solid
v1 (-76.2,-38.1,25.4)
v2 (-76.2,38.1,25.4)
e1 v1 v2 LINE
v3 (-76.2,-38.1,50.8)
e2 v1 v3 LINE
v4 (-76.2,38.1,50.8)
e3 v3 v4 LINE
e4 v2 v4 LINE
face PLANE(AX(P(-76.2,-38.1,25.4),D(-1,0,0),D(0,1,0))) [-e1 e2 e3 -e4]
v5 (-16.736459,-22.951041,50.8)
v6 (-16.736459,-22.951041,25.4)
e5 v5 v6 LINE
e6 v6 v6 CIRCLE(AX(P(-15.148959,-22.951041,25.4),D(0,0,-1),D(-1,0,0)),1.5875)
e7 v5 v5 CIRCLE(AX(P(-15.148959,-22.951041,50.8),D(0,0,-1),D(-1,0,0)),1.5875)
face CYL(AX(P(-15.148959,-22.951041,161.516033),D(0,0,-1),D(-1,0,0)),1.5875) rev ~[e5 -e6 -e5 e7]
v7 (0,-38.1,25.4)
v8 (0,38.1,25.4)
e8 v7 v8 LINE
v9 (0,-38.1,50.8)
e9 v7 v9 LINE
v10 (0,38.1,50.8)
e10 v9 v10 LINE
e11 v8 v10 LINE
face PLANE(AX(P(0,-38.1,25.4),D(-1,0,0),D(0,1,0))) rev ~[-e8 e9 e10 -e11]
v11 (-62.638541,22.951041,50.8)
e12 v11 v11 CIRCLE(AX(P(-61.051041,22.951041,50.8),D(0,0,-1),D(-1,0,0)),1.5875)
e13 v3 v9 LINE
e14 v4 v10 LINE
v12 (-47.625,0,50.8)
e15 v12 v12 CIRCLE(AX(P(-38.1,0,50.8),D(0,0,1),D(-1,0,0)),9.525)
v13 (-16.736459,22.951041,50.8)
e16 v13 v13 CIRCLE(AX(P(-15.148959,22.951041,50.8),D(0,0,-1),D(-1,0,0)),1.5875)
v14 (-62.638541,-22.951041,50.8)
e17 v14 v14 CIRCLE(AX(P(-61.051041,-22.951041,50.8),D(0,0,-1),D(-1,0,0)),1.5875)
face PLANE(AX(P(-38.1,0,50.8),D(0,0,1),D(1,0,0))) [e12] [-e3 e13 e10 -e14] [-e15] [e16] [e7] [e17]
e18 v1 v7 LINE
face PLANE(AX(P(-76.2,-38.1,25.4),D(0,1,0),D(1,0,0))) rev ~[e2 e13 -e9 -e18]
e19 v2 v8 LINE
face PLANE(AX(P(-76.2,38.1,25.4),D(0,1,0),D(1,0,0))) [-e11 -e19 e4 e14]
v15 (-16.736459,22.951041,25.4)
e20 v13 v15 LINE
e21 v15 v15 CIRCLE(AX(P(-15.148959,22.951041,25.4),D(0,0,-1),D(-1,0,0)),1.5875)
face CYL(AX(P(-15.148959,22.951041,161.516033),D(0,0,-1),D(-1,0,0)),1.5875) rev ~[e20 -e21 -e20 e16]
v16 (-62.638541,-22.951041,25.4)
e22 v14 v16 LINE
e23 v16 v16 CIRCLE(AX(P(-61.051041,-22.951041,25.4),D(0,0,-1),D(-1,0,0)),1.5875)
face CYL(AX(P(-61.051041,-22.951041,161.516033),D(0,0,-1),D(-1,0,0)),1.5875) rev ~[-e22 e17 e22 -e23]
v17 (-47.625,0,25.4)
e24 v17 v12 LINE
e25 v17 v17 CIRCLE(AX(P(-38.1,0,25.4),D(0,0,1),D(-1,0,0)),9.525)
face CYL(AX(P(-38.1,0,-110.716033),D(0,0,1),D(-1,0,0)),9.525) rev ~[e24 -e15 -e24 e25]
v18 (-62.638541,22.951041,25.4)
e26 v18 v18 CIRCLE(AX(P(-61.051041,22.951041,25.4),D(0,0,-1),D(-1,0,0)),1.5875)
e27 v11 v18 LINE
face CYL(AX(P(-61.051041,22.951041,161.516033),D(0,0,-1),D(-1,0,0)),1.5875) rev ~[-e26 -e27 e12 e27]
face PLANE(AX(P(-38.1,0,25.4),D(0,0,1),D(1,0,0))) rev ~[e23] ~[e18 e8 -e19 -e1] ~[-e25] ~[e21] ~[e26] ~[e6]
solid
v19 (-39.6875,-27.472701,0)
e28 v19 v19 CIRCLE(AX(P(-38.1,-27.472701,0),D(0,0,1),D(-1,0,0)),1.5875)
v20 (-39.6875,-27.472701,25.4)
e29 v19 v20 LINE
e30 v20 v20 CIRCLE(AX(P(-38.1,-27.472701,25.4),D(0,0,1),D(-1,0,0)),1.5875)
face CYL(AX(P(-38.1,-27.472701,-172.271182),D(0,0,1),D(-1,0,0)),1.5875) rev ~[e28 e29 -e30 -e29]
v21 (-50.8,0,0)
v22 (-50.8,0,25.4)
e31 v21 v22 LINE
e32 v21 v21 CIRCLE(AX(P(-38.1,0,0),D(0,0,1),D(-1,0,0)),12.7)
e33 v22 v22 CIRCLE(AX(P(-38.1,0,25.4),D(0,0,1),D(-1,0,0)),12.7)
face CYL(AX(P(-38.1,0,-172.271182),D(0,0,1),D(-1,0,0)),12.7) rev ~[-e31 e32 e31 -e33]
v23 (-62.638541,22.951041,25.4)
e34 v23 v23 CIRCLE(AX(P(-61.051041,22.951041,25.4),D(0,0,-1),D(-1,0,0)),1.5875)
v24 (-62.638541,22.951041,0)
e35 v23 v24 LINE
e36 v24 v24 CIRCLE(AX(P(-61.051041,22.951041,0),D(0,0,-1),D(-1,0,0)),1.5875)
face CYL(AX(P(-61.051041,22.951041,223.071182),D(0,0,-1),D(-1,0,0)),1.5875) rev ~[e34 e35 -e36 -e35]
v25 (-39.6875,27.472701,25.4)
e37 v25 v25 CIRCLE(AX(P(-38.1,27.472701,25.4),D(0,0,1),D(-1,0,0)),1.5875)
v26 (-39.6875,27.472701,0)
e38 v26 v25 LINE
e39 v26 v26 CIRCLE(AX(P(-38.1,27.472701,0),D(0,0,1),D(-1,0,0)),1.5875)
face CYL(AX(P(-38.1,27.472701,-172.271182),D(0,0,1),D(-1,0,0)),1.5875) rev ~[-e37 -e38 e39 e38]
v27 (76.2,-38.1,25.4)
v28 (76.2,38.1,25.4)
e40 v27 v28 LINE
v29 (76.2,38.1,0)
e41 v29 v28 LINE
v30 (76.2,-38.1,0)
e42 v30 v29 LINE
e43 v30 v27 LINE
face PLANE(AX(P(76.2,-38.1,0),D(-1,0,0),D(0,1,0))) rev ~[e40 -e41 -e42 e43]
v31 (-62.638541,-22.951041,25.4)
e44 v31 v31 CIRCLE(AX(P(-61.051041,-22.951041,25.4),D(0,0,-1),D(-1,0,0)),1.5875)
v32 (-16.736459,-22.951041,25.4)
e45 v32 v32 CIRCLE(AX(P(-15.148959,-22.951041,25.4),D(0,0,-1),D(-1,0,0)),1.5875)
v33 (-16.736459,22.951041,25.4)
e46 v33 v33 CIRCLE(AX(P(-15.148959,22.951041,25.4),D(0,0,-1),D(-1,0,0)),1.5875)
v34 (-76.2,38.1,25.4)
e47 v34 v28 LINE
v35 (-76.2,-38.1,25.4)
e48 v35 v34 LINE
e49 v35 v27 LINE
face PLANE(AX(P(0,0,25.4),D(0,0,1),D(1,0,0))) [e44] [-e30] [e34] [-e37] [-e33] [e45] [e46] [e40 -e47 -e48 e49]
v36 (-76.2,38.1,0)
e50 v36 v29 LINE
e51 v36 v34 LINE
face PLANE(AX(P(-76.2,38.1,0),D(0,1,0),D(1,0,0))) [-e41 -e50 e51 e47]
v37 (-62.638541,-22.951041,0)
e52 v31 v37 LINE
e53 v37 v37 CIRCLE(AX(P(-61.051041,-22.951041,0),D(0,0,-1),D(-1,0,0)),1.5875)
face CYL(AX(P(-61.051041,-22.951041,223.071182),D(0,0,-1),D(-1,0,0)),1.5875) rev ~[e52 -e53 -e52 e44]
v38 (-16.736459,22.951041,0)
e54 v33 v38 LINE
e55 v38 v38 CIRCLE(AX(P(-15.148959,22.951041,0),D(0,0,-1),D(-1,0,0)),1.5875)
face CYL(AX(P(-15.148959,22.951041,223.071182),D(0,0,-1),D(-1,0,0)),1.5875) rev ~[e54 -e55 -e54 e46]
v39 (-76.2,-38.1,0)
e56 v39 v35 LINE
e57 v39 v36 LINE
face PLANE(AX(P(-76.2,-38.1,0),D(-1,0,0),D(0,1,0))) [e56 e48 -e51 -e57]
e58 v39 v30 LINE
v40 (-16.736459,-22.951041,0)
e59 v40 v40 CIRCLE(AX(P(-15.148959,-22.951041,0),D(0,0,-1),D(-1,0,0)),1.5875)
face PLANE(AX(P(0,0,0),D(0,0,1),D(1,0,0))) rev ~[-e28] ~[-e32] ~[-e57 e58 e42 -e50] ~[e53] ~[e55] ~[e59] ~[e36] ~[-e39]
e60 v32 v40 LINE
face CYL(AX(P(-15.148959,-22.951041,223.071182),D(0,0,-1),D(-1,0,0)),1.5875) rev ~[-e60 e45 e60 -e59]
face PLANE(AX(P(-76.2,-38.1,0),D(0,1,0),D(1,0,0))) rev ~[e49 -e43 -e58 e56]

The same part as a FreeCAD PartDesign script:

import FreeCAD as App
import Part
import Sketcher

V = App.Vector
Q = App.Units.Quantity


def add_polygon(sketch, points):
    """Adds a closed chain of lines whose ends are joined by coincident constraints."""
    first, n = sketch.GeometryCount, len(points)
    for a, b in zip(points, points[1:] + points[:1]):
        sketch.addGeometry(Part.LineSegment(App.Vector(*a, 0), App.Vector(*b, 0)), False)
    for i in range(n):
        sketch.addConstraint(Sketcher.Constraint("Coincident", first + i, 2, first + (i + 1) % n, 1))

doc = App.newDocument("Part")
params = doc.addObject("Spreadsheet::Sheet", "Params")
for row, (alias, value) in enumerate([
    ("sketch1_width", "6 in"),
    ("sketch1_height", "3 in"),
    ("pad1_length", "1 in"),
    ("sketch2_diameter", "1 in"),
    ("hole_diameter", "1 in"),
    ("sketch3_diameter", "0.125 in"),
    ("hole2_diameter", "0.125 in"),
    ("sketch4_diameter", "0.125 in"),
    ("hole3_diameter", "0.125 in"),
    ("sketch5_width", "3 in"),
    ("pad2_length", "1 in"),
    ("sketch6_diameter", "0.125 in"),
    ("hole4_diameter", "0.125 in"),
    ("sketch7_diameter", "0.75 in"),
    ("hole5_diameter", "0.75 in"),
], start=1):
    params.set(f"A{row}", alias)
    params.set(f"B{row}", "=" + value)
    params.setAlias(f"B{row}", alias)

body = doc.addObject("PartDesign::Body", "Body")

# Sketch on XY plane
sketch1 = body.newObject("Sketcher::SketchObject", "Sketch")
sketch1.AttachmentSupport = (doc.getObject("XY_Plane"), [""])
sketch1.MapMode = "FlatFace"
add_polygon(sketch1, [(-76, 38), (-76, -38), (76, -38), (76, 38)])  # lines 0-3
sketch1.addConstraint([
    Sketcher.Constraint("Vertical", 0),
    Sketcher.Constraint("Horizontal", 1),
    Sketcher.Constraint("Vertical", 2),
    Sketcher.Constraint("Horizontal", 3),
    Sketcher.Constraint("Symmetric", 0, 2, 2, 2, -1, 1),
    Sketcher.Constraint("DistanceX", 1, 1, 1, 2, Q("6 in")),
    Sketcher.Constraint("DistanceY", 0, 2, 0, 1, Q("3 in")),
])
sketch1.setExpression("Constraints[9]", "Params.sketch1_width")
sketch1.setExpression("Constraints[10]", "Params.sketch1_height")
pad1 = body.newObject("PartDesign::Pad", "Pad")
pad1.Profile = sketch1
pad1.setExpression("Length", "Params.pad1_length")

# Sketch on XY plane
sketch2 = body.newObject("Sketcher::SketchObject", "Sketch001")
sketch2.AttachmentSupport = (doc.getObject("XY_Plane"), [""])
sketch2.MapMode = "FlatFace"
sketch2.addGeometry(Part.Circle(V(-38, 0, 0), V(0, 0, 1), 13), False)
sketch2.addConstraint([
    Sketcher.Constraint("PointOnObject", 0, 3, -1),
    Sketcher.Constraint("Diameter", 0, Q("1 in")),
    Sketcher.Constraint("DistanceX", 0, 3, -1, 1, Q("1.5 in")),
])
sketch2.setExpression("Constraints[1]", "Params.sketch2_diameter")
doc.recompute()
hole = body.newObject("PartDesign::Hole", "Hole")
hole.Profile = sketch2
hole.ThreadType = "None"
hole.setExpression("Diameter", "Params.hole_diameter")
hole.DepthType = "ThroughAll"
hole.Reversed = True

# Sketch on XY plane
sketch3 = body.newObject("Sketcher::SketchObject", "Sketch002")
sketch3.AttachmentSupport = (doc.getObject("XY_Plane"), [""])
sketch3.MapMode = "FlatFace"
sketch3.addGeometry([
    Part.Circle(V(-38.1, -27.5, 0), V(0, 0, 1), 1.6),
    Part.Circle(V(-38.1, 27.5, 0), V(0, 0, 1), 1.6),
], False)
sketch3.addConstraint([
    Sketcher.Constraint("Equal", 0, 1),
    Sketcher.Constraint("Symmetric", 0, 3, 1, 3, -1),
    Sketcher.Constraint("Diameter", 0, Q("0.125 in")),
    Sketcher.Constraint("DistanceX", 0, 3, -1, 1, Q("1.5 in")),
    Sketcher.Constraint("DistanceY", 0, 3, -1, 1, Q("27.472701 mm")),
])
sketch3.setExpression("Constraints[2]", "Params.sketch3_diameter")
doc.recompute()
hole2 = body.newObject("PartDesign::Hole", "Hole001")
hole2.Profile = sketch3
hole2.ThreadType = "None"
hole2.setExpression("Diameter", "Params.hole2_diameter")
hole2.DepthType = "ThroughAll"
hole2.Reversed = True

# Sketch on XY plane
sketch4 = body.newObject("Sketcher::SketchObject", "Sketch003")
sketch4.AttachmentSupport = (doc.getObject("XY_Plane"), [""])
sketch4.MapMode = "FlatFace"
sketch4.AttachmentOffset = App.Placement(V(0, 0, 2 * 25.4), App.Rotation())
sketch4.addGeometry([
    Part.Circle(V(-15.1, 23, 0), V(0, 0, 1), 1.6),
    Part.Circle(V(-15.1, -23, 0), V(0, 0, 1), 1.6),
    Part.Circle(V(-61.1, -23, 0), V(0, 0, 1), 1.6),
    Part.Circle(V(-61.1, 23, 0), V(0, 0, 1), 1.6),
], False)
sketch4.addConstraint([
    Sketcher.Constraint("Equal", 0, 1),
    Sketcher.Constraint("Equal", 1, 2),
    Sketcher.Constraint("Equal", 2, 3),
    Sketcher.Constraint("Symmetric", 0, 3, 1, 3, -1),
    Sketcher.Constraint("Symmetric", 2, 3, 3, 3, -1),
    Sketcher.Constraint("Horizontal", 1, 3, 2, 3),
    Sketcher.Constraint("Diameter", 0, Q("0.125 in")),
    Sketcher.Constraint("DistanceX", 0, 3, -1, 1, Q("15.148959 mm")),
    Sketcher.Constraint("DistanceY", -1, 1, 0, 3, Q("22.951041 mm")),
    Sketcher.Constraint("DistanceX", 2, 3, -1, 1, Q("61.051041 mm")),
])
sketch4.setExpression("Constraints[6]", "Params.sketch4_diameter")
doc.recompute()
hole3 = body.newObject("PartDesign::Hole", "Hole002")
hole3.Profile = sketch4
hole3.ThreadType = "None"
hole3.setExpression("Diameter", "Params.hole3_diameter")
hole3.DepthType = "ThroughAll"
body2 = doc.addObject("PartDesign::Body", "Body001")

# Sketch on XY plane
sketch5 = body2.newObject("Sketcher::SketchObject", "Sketch004")
sketch5.AttachmentSupport = (doc.getObject("XY_Plane001"), [""])
sketch5.MapMode = "FlatFace"
sketch5.AttachmentOffset = App.Placement(V(0, 0, 1 * 25.4), App.Rotation())
add_polygon(sketch5, [(-76, 38), (-76, -38), (0, -38), (0, 38)])  # lines 0-3
sketch5.addConstraint([
    Sketcher.Constraint("Vertical", 0),
    Sketcher.Constraint("Horizontal", 1),
    Sketcher.Constraint("Vertical", 2),
    Sketcher.Constraint("Horizontal", 3),
    Sketcher.Constraint("Symmetric", 1, 2, 2, 2, -1, 1),
    Sketcher.Constraint("Equal", 3, 0),
    Sketcher.Constraint("DistanceX", 1, 1, 1, 2, Q("3 in")),
])
sketch5.setExpression("Constraints[10]", "Params.sketch5_width")
pad2 = body2.newObject("PartDesign::Pad", "Pad001")
pad2.Profile = sketch5
pad2.setExpression("Length", "Params.pad2_length")

# Sketch on XY plane
sketch6 = body2.newObject("Sketcher::SketchObject", "Sketch005")
sketch6.AttachmentSupport = (doc.getObject("XY_Plane001"), [""])
sketch6.MapMode = "FlatFace"
sketch6.AttachmentOffset = App.Placement(V(0, 0, 2 * 25.4), App.Rotation())
sketch6.addGeometry([
    Part.Circle(V(-15.1, 23, 0), V(0, 0, 1), 1.6),
    Part.Circle(V(-15.1, -23, 0), V(0, 0, 1), 1.6),
    Part.Circle(V(-61.1, -23, 0), V(0, 0, 1), 1.6),
    Part.Circle(V(-61.1, 23, 0), V(0, 0, 1), 1.6),
], False)
sketch6.addConstraint([
    Sketcher.Constraint("Equal", 0, 1),
    Sketcher.Constraint("Equal", 1, 2),
    Sketcher.Constraint("Equal", 2, 3),
    Sketcher.Constraint("Symmetric", 0, 3, 1, 3, -1),
    Sketcher.Constraint("Symmetric", 2, 3, 3, 3, -1),
    Sketcher.Constraint("Horizontal", 1, 3, 2, 3),
    Sketcher.Constraint("Diameter", 0, Q("0.125 in")),
    Sketcher.Constraint("DistanceX", 0, 3, -1, 1, Q("15.148959 mm")),
    Sketcher.Constraint("DistanceY", -1, 1, 0, 3, Q("22.951041 mm")),
    Sketcher.Constraint("DistanceX", 2, 3, -1, 1, Q("61.051041 mm")),
])
sketch6.setExpression("Constraints[6]", "Params.sketch6_diameter")
doc.recompute()
hole4 = body2.newObject("PartDesign::Hole", "Hole003")
hole4.Profile = sketch6
hole4.ThreadType = "None"
hole4.setExpression("Diameter", "Params.hole4_diameter")
hole4.DepthType = "ThroughAll"

# Sketch on XY plane
sketch7 = body2.newObject("Sketcher::SketchObject", "Sketch006")
sketch7.AttachmentSupport = (doc.getObject("XY_Plane001"), [""])
sketch7.MapMode = "FlatFace"
sketch7.addGeometry(Part.Circle(V(-38, 0, 0), V(0, 0, 1), 10), False)
sketch7.addConstraint([
    Sketcher.Constraint("PointOnObject", 0, 3, -1),
    Sketcher.Constraint("Diameter", 0, Q("0.75 in")),
    Sketcher.Constraint("DistanceX", 0, 3, -1, 1, Q("1.5 in")),
])
sketch7.setExpression("Constraints[1]", "Params.sketch7_diameter")
doc.recompute()
hole5 = body2.newObject("PartDesign::Hole", "Hole004")
hole5.Profile = sketch7
hole5.ThreadType = "None"
hole5.setExpression("Diameter", "Params.hole5_diameter")
hole5.DepthType = "ThroughAll"
hole5.Reversed = True

doc.recompute()
